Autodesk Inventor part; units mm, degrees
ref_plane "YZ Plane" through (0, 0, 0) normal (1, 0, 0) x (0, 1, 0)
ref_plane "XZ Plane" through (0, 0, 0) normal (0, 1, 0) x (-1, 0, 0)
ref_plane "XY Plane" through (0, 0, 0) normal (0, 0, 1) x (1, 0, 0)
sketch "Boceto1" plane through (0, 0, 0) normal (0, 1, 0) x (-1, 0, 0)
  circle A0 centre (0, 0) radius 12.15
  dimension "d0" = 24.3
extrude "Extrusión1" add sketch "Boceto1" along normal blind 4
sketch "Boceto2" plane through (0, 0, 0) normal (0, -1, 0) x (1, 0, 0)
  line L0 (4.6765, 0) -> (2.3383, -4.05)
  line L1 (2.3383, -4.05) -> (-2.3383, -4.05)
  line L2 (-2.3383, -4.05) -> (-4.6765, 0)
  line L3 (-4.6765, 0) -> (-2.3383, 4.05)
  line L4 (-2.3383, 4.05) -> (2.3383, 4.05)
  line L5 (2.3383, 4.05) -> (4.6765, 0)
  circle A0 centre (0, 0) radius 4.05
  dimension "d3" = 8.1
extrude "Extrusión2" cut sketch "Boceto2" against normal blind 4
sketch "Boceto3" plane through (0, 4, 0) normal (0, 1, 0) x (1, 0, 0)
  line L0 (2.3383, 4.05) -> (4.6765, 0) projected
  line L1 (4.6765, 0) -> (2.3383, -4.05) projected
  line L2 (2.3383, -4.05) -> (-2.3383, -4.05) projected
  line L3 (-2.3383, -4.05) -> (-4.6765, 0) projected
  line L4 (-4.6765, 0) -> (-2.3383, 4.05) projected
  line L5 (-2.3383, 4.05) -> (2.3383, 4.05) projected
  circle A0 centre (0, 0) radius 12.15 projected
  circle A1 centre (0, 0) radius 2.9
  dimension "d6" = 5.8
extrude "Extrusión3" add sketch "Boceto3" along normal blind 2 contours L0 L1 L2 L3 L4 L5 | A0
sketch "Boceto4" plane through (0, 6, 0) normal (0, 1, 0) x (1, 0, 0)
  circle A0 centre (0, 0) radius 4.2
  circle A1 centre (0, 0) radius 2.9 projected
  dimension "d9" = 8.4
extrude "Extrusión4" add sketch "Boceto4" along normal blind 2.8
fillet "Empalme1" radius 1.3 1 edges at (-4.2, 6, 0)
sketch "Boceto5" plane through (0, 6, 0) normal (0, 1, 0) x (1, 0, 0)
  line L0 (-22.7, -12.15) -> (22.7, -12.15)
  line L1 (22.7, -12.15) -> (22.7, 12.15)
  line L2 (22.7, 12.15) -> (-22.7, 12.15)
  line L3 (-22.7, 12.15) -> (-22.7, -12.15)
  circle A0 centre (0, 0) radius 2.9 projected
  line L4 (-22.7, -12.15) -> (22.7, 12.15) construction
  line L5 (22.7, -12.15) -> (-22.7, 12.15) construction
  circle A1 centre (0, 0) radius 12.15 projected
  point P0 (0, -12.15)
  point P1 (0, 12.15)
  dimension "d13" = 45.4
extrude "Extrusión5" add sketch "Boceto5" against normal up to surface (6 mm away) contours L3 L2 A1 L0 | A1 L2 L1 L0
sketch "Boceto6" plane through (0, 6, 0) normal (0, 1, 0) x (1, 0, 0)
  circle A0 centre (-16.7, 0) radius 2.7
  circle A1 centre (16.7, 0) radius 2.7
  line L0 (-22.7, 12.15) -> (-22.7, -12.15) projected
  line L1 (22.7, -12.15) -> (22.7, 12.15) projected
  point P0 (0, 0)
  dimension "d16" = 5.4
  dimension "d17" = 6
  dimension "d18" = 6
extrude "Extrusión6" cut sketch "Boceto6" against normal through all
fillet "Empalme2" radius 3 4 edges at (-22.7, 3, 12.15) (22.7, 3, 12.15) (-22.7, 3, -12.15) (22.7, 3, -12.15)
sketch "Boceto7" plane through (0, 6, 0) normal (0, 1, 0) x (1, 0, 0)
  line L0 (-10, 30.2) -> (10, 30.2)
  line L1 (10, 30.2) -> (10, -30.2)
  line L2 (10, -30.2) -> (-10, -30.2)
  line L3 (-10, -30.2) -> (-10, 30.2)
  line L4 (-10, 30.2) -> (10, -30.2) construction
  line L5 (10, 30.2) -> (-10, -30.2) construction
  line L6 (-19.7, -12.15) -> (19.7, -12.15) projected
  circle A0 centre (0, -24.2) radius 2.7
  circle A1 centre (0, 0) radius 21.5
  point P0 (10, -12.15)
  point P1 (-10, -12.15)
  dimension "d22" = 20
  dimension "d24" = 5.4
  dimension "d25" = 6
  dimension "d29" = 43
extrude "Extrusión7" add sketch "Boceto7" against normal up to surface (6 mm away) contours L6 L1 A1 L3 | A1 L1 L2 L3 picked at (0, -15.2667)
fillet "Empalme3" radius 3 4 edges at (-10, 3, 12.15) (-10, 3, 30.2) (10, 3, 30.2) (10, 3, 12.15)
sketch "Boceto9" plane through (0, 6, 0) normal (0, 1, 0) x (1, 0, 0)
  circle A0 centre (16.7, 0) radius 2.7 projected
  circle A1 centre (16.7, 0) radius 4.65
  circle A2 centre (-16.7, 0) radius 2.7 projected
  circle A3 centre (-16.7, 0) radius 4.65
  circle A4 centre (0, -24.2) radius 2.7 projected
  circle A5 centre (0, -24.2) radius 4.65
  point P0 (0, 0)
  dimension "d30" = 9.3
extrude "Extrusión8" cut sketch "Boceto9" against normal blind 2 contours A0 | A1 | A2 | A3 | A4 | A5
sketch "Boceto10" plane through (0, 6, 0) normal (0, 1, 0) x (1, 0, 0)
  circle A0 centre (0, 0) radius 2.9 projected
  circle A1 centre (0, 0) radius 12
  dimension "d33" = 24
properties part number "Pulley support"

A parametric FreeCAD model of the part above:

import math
import FreeCAD as App
import Part
import Sketcher

V = App.Vector
Q = App.Units.Quantity


def edges_at(feature, points):
    """Names of the edges that pass closest to the given points."""
    edges = feature.Shape.Edges
    near = lambda p: min(range(len(edges)), key=lambda i: edges[i].distToShape(Part.Vertex(*p))[0])
    return sorted({f"Edge{near(p) + 1}" for p in points})

doc = App.newDocument("Part")
body = doc.addObject("PartDesign::Body", "Body")

# Sketch on XZ plane
sketch1 = body.newObject("Sketcher::SketchObject", "Sketch")
sketch1.AttachmentSupport = (doc.getObject("XZ_Plane"), [""])
sketch1.MapMode = "FlatFace"
sketch1.addGeometry(Part.Circle(V(0, 0, 0), V(0, 0, 1), 12.15), False)
sketch1.addConstraint([
    Sketcher.Constraint("Coincident", 0, 3, -1, 1),
    Sketcher.Constraint("Diameter", 0, Q("24.3 mm")),
])
pad1 = body.newObject("PartDesign::Pad", "Pad")
pad1.Profile = sketch1
pad1.Length = 4
pad1.Reversed = True

# Sketch on XZ plane
sketch2 = body.newObject("Sketcher::SketchObject", "Sketch001")
sketch2.AttachmentSupport = (doc.getObject("XZ_Plane"), [""])
sketch2.MapMode = "FlatFace"
sketch2.addGeometry([
    Part.LineSegment(V(4.6765, 0, 0), V(2.3383, 4.05, 0)),  # 0
    Part.LineSegment(V(2.3383, 4.05, 0), V(-2.3383, 4.05, 0)),  # 1
    Part.LineSegment(V(-2.3383, 4.05, 0), V(-4.6765, 0, 0)),  # 2
    Part.LineSegment(V(-4.6765, 0, 0), V(-2.3383, -4.05, 0)),  # 3
    Part.LineSegment(V(-2.3383, -4.05, 0), V(2.3383, -4.05, 0)),  # 4
    Part.LineSegment(V(2.3383, -4.05, 0), V(4.6765, 0, 0)),  # 5
], False)
sketch2.addConstraint([
    Sketcher.Constraint("Coincident", 0, 2, 1, 1),
    Sketcher.Constraint("Coincident", 1, 2, 2, 1),
    Sketcher.Constraint("Coincident", 2, 2, 3, 1),
    Sketcher.Constraint("Coincident", 3, 2, 4, 1),
    Sketcher.Constraint("Coincident", 4, 2, 5, 1),
    Sketcher.Constraint("Coincident", 5, 2, 0, 1),
    Sketcher.Constraint("Horizontal", 1),
    Sketcher.Constraint("Horizontal", 4),
    Sketcher.Constraint("Symmetric", 0, 2, 3, 2, -1, 1),
    Sketcher.Constraint("Symmetric", 2, 2, 5, 2, -1, 1),
    Sketcher.Constraint("PointOnObject", 2, 2, -1),
    Sketcher.Constraint("Parallel", 2, 5),
    Sketcher.Constraint("Vertical", 1, 2, 3, 2),
    Sketcher.Constraint("DistanceY", 3, 2, 1, 2, Q("8.1 mm")),
    Sketcher.Constraint("Angle", 0, Q("119.9993 deg")),
    Sketcher.Constraint("DistanceX", 1, 2, 1, 1, Q("4.6766 mm")),
])
pocket1 = body.newObject("PartDesign::Pocket", "Pocket")
pocket1.Profile = sketch2
pocket1.Length = 4

# Sketch on XZ plane
sketch3 = body.newObject("Sketcher::SketchObject", "Sketch002")
sketch3.AttachmentSupport = (doc.getObject("XZ_Plane"), [""])
sketch3.MapMode = "FlatFace"
sketch3.AttachmentOffset = App.Placement(V(0, 0, -4), App.Rotation())
sketch3.addGeometry([
    Part.Circle(V(0, 0, 0), V(0, 0, 1), 12.15),
    Part.Circle(V(0, 0, 0), V(0, 0, 1), 2.9),
], False)
sketch3.addConstraint([
    Sketcher.Constraint("Coincident", 0, 3, -1, 1),
    Sketcher.Constraint("Coincident", 1, 3, -1, 1),
    Sketcher.Constraint("Diameter", 1, Q("5.8 mm")),
    Sketcher.Constraint("Diameter", 0, Q("24.3 mm")),
])
pad2 = body.newObject("PartDesign::Pad", "Pad001")
pad2.Profile = sketch3
pad2.Length = 2
pad2.Reversed = True

# Sketch on XZ plane
sketch4 = body.newObject("Sketcher::SketchObject", "Sketch003")
sketch4.AttachmentSupport = (doc.getObject("XZ_Plane"), [""])
sketch4.MapMode = "FlatFace"
sketch4.AttachmentOffset = App.Placement(V(0, 0, -6), App.Rotation())
sketch4.addGeometry([
    Part.Circle(V(0, 0, 0), V(0, 0, 1), 4.2),
    Part.Circle(V(0, 0, 0), V(0, 0, 1), 2.9),
], False)
sketch4.addConstraint([
    Sketcher.Constraint("Coincident", 0, 3, -1, 1),
    Sketcher.Constraint("Coincident", 1, 3, -1, 1),
    Sketcher.Constraint("Diameter", 0, Q("8.4 mm")),
    Sketcher.Constraint("Diameter", 1, Q("5.8 mm")),
])
pad3 = body.newObject("PartDesign::Pad", "Pad002")
pad3.Profile = sketch4
pad3.Length = 2.8
pad3.Reversed = True
doc.recompute()

fillet = body.newObject("PartDesign::Fillet", "Fillet")
fillet.Base = (pad3, edges_at(pad3, [(-4.2, 6, 0)]))
fillet.Radius = 1.3

# Sketch on XZ plane
sketch5 = body.newObject("Sketcher::SketchObject", "Sketch004")
sketch5.AttachmentSupport = (doc.getObject("XZ_Plane"), [""])
sketch5.MapMode = "FlatFace"
sketch5.AttachmentOffset = App.Placement(V(0, 0, -6), App.Rotation())
sketch5.addGeometry([
    Part.LineSegment(V(-22.7, -12.15, 0), V(-22.7, 12.15, 0)),  # 0
    Part.LineSegment(V(-22.7, 12.15, 0), V(0, 12.15, 0)),  # 1
    Part.ArcOfCircle(Part.Circle(V(0, 0, 0), V(0, 0, 1), 12.15), math.radians(90), math.radians(270)),  # 2
    Part.LineSegment(V(0, -12.15, 0), V(-22.7, -12.15, 0)),  # 3
    Part.ArcOfCircle(Part.Circle(V(0, 0, 0), V(0, 0, 1), 12.15), math.radians(-90), math.radians(90)),  # 4
    Part.LineSegment(V(0, 12.15, 0), V(22.7, 12.15, 0)),  # 5
    Part.LineSegment(V(22.7, 12.15, 0), V(22.7, -12.15, 0)),  # 6
    Part.LineSegment(V(22.7, -12.15, 0), V(0, -12.15, 0)),  # 7
], False)
sketch5.addConstraint([
    Sketcher.Constraint("Coincident", 0, 2, 1, 1),
    Sketcher.Constraint("Tangent", 1, 2, 2, 1),
    Sketcher.Constraint("Tangent", 2, 2, 3, 1),
    Sketcher.Constraint("Coincident", 3, 2, 0, 1),
    Sketcher.Constraint("Tangent", 4, 2, 5, 1),
    Sketcher.Constraint("Coincident", 5, 2, 6, 1),
    Sketcher.Constraint("Coincident", 6, 2, 7, 1),
    Sketcher.Constraint("Tangent", 7, 2, 4, 1),
    Sketcher.Constraint("Vertical", 0),
    Sketcher.Constraint("Horizontal", 1),
    Sketcher.Constraint("Horizontal", 3),
    Sketcher.Constraint("Horizontal", 5),
    Sketcher.Constraint("Vertical", 6),
    Sketcher.Constraint("Horizontal", 7),
    Sketcher.Constraint("Coincident", 2, 3, -1, 1),
    Sketcher.Constraint("Coincident", 4, 3, -1, 1),
    Sketcher.Constraint("Equal", 2, 4),
    Sketcher.Constraint("Equal", 3, 5),
    Sketcher.Constraint("Radius", 2, Q("12.15 mm")),
    Sketcher.Constraint("DistanceX", 1, 1, 1, 2, Q("22.7 mm")),
])
pad4 = body.newObject("PartDesign::Pad", "Pad003")
pad4.Profile = sketch5
pad4.Length = 6

# Sketch on XZ plane
sketch6 = body.newObject("Sketcher::SketchObject", "Sketch005")
sketch6.AttachmentSupport = (doc.getObject("XZ_Plane"), [""])
sketch6.MapMode = "FlatFace"
sketch6.AttachmentOffset = App.Placement(V(0, 0, -6), App.Rotation())
sketch6.addGeometry([
    Part.Circle(V(-16.7, 0, 0), V(0, 0, 1), 2.7),
    Part.Circle(V(16.7, 0, 0), V(0, 0, 1), 2.7),
], False)
sketch6.addConstraint([
    Sketcher.Constraint("Equal", 0, 1),
    Sketcher.Constraint("Symmetric", 0, 3, 1, 3, -1, 1),
    Sketcher.Constraint("PointOnObject", 0, 3, -1),
    Sketcher.Constraint("Diameter", 0, Q("5.4 mm")),
    Sketcher.Constraint("DistanceX", 0, 3, -1, 1, Q("16.7 mm")),
])
pocket2 = body.newObject("PartDesign::Pocket", "Pocket001")
pocket2.Profile = sketch6
pocket2.Type = "ThroughAll"
pocket2.Reversed = True
doc.recompute()

fillet2 = body.newObject("PartDesign::Fillet", "Fillet001")
fillet2.Base = (pocket2, edges_at(pocket2, [
    (-22.7, 3, 12.15),
    (22.7, 3, 12.15),
    (-22.7, 3, -12.15),
    (22.7, 3, -12.15),
]))
fillet2.Radius = 3

# Sketch on XZ plane
sketch7 = body.newObject("Sketcher::SketchObject", "Sketch006")
sketch7.AttachmentSupport = (doc.getObject("XZ_Plane"), [""])
sketch7.MapMode = "FlatFace"
sketch7.AttachmentOffset = App.Placement(V(0, 0, -6), App.Rotation())
sketch7.addGeometry([
    Part.LineSegment(V(10, 12.15, 0), V(-10, 12.15, 0)),  # 0
    Part.LineSegment(V(-10, 12.15, 0), V(-10, 30.2, 0)),  # 1
    Part.LineSegment(V(-10, 30.2, 0), V(10, 30.2, 0)),  # 2
    Part.LineSegment(V(10, 30.2, 0), V(10, 12.15, 0)),  # 3
    Part.Circle(V(0, 24.2, 0), V(0, 0, 1), 2.7),  # 4
], False)
sketch7.addConstraint([
    Sketcher.Constraint("Coincident", 0, 2, 1, 1),
    Sketcher.Constraint("Coincident", 1, 2, 2, 1),
    Sketcher.Constraint("Coincident", 2, 2, 3, 1),
    Sketcher.Constraint("Coincident", 3, 2, 0, 1),
    Sketcher.Constraint("Horizontal", 0),
    Sketcher.Constraint("Vertical", 1),
    Sketcher.Constraint("Horizontal", 2),
    Sketcher.Constraint("Vertical", 3),
    Sketcher.Constraint("PointOnObject", 4, 3, -2),
    Sketcher.Constraint("Diameter", 4, Q("5.4 mm")),
    Sketcher.Constraint("DistanceX", 0, 2, 0, 1, Q("20 mm")),
    Sketcher.Constraint("DistanceY", 4, 3, 1, 2, Q("6 mm")),
    Sketcher.Constraint("DistanceX", 0, 2, -1, 1, Q("10 mm")),
    Sketcher.Constraint("DistanceY", 1, 1, 1, 2, Q("18.05 mm")),
    Sketcher.Constraint("DistanceY", -1, 1, 4, 3, Q("24.2 mm")),
])
pad5 = body.newObject("PartDesign::Pad", "Pad004")
pad5.Profile = sketch7
pad5.Length = 6
doc.recompute()

fillet3 = body.newObject("PartDesign::Fillet", "Fillet002")
fillet3.Base = (pad5, edges_at(pad5, [
    (-10, 3, 12.15),
    (-10, 3, 30.2),
    (10, 3, 30.2),
    (10, 3, 12.15),
]))
fillet3.Radius = 3

# Sketch on XZ plane
sketch8 = body.newObject("Sketcher::SketchObject", "Sketch007")
sketch8.AttachmentSupport = (doc.getObject("XZ_Plane"), [""])
sketch8.MapMode = "FlatFace"
sketch8.AttachmentOffset = App.Placement(V(0, 0, -6), App.Rotation())
sketch8.addGeometry([
    Part.Circle(V(16.7, 0, 0), V(0, 0, 1), 4.65),
    Part.Circle(V(-16.7, 0, 0), V(0, 0, 1), 4.65),
    Part.Circle(V(0, 24.2, 0), V(0, 0, 1), 4.65),
], False)
sketch8.addConstraint([
    Sketcher.Constraint("Equal", 0, 1),
    Sketcher.Constraint("Equal", 1, 2),
    Sketcher.Constraint("Symmetric", 0, 3, 1, 3, -1, 1),
    Sketcher.Constraint("PointOnObject", 0, 3, -1),
    Sketcher.Constraint("PointOnObject", 2, 3, -2),
    Sketcher.Constraint("Diameter", 0, Q("9.3 mm")),
    Sketcher.Constraint("DistanceX", -1, 1, 0, 3, Q("16.7 mm")),
    Sketcher.Constraint("DistanceY", -1, 1, 2, 3, Q("24.2 mm")),
])
pocket3 = body.newObject("PartDesign::Pocket", "Pocket002")
pocket3.Profile = sketch8
pocket3.Length = 2
pocket3.Reversed = True

doc.recompute()
